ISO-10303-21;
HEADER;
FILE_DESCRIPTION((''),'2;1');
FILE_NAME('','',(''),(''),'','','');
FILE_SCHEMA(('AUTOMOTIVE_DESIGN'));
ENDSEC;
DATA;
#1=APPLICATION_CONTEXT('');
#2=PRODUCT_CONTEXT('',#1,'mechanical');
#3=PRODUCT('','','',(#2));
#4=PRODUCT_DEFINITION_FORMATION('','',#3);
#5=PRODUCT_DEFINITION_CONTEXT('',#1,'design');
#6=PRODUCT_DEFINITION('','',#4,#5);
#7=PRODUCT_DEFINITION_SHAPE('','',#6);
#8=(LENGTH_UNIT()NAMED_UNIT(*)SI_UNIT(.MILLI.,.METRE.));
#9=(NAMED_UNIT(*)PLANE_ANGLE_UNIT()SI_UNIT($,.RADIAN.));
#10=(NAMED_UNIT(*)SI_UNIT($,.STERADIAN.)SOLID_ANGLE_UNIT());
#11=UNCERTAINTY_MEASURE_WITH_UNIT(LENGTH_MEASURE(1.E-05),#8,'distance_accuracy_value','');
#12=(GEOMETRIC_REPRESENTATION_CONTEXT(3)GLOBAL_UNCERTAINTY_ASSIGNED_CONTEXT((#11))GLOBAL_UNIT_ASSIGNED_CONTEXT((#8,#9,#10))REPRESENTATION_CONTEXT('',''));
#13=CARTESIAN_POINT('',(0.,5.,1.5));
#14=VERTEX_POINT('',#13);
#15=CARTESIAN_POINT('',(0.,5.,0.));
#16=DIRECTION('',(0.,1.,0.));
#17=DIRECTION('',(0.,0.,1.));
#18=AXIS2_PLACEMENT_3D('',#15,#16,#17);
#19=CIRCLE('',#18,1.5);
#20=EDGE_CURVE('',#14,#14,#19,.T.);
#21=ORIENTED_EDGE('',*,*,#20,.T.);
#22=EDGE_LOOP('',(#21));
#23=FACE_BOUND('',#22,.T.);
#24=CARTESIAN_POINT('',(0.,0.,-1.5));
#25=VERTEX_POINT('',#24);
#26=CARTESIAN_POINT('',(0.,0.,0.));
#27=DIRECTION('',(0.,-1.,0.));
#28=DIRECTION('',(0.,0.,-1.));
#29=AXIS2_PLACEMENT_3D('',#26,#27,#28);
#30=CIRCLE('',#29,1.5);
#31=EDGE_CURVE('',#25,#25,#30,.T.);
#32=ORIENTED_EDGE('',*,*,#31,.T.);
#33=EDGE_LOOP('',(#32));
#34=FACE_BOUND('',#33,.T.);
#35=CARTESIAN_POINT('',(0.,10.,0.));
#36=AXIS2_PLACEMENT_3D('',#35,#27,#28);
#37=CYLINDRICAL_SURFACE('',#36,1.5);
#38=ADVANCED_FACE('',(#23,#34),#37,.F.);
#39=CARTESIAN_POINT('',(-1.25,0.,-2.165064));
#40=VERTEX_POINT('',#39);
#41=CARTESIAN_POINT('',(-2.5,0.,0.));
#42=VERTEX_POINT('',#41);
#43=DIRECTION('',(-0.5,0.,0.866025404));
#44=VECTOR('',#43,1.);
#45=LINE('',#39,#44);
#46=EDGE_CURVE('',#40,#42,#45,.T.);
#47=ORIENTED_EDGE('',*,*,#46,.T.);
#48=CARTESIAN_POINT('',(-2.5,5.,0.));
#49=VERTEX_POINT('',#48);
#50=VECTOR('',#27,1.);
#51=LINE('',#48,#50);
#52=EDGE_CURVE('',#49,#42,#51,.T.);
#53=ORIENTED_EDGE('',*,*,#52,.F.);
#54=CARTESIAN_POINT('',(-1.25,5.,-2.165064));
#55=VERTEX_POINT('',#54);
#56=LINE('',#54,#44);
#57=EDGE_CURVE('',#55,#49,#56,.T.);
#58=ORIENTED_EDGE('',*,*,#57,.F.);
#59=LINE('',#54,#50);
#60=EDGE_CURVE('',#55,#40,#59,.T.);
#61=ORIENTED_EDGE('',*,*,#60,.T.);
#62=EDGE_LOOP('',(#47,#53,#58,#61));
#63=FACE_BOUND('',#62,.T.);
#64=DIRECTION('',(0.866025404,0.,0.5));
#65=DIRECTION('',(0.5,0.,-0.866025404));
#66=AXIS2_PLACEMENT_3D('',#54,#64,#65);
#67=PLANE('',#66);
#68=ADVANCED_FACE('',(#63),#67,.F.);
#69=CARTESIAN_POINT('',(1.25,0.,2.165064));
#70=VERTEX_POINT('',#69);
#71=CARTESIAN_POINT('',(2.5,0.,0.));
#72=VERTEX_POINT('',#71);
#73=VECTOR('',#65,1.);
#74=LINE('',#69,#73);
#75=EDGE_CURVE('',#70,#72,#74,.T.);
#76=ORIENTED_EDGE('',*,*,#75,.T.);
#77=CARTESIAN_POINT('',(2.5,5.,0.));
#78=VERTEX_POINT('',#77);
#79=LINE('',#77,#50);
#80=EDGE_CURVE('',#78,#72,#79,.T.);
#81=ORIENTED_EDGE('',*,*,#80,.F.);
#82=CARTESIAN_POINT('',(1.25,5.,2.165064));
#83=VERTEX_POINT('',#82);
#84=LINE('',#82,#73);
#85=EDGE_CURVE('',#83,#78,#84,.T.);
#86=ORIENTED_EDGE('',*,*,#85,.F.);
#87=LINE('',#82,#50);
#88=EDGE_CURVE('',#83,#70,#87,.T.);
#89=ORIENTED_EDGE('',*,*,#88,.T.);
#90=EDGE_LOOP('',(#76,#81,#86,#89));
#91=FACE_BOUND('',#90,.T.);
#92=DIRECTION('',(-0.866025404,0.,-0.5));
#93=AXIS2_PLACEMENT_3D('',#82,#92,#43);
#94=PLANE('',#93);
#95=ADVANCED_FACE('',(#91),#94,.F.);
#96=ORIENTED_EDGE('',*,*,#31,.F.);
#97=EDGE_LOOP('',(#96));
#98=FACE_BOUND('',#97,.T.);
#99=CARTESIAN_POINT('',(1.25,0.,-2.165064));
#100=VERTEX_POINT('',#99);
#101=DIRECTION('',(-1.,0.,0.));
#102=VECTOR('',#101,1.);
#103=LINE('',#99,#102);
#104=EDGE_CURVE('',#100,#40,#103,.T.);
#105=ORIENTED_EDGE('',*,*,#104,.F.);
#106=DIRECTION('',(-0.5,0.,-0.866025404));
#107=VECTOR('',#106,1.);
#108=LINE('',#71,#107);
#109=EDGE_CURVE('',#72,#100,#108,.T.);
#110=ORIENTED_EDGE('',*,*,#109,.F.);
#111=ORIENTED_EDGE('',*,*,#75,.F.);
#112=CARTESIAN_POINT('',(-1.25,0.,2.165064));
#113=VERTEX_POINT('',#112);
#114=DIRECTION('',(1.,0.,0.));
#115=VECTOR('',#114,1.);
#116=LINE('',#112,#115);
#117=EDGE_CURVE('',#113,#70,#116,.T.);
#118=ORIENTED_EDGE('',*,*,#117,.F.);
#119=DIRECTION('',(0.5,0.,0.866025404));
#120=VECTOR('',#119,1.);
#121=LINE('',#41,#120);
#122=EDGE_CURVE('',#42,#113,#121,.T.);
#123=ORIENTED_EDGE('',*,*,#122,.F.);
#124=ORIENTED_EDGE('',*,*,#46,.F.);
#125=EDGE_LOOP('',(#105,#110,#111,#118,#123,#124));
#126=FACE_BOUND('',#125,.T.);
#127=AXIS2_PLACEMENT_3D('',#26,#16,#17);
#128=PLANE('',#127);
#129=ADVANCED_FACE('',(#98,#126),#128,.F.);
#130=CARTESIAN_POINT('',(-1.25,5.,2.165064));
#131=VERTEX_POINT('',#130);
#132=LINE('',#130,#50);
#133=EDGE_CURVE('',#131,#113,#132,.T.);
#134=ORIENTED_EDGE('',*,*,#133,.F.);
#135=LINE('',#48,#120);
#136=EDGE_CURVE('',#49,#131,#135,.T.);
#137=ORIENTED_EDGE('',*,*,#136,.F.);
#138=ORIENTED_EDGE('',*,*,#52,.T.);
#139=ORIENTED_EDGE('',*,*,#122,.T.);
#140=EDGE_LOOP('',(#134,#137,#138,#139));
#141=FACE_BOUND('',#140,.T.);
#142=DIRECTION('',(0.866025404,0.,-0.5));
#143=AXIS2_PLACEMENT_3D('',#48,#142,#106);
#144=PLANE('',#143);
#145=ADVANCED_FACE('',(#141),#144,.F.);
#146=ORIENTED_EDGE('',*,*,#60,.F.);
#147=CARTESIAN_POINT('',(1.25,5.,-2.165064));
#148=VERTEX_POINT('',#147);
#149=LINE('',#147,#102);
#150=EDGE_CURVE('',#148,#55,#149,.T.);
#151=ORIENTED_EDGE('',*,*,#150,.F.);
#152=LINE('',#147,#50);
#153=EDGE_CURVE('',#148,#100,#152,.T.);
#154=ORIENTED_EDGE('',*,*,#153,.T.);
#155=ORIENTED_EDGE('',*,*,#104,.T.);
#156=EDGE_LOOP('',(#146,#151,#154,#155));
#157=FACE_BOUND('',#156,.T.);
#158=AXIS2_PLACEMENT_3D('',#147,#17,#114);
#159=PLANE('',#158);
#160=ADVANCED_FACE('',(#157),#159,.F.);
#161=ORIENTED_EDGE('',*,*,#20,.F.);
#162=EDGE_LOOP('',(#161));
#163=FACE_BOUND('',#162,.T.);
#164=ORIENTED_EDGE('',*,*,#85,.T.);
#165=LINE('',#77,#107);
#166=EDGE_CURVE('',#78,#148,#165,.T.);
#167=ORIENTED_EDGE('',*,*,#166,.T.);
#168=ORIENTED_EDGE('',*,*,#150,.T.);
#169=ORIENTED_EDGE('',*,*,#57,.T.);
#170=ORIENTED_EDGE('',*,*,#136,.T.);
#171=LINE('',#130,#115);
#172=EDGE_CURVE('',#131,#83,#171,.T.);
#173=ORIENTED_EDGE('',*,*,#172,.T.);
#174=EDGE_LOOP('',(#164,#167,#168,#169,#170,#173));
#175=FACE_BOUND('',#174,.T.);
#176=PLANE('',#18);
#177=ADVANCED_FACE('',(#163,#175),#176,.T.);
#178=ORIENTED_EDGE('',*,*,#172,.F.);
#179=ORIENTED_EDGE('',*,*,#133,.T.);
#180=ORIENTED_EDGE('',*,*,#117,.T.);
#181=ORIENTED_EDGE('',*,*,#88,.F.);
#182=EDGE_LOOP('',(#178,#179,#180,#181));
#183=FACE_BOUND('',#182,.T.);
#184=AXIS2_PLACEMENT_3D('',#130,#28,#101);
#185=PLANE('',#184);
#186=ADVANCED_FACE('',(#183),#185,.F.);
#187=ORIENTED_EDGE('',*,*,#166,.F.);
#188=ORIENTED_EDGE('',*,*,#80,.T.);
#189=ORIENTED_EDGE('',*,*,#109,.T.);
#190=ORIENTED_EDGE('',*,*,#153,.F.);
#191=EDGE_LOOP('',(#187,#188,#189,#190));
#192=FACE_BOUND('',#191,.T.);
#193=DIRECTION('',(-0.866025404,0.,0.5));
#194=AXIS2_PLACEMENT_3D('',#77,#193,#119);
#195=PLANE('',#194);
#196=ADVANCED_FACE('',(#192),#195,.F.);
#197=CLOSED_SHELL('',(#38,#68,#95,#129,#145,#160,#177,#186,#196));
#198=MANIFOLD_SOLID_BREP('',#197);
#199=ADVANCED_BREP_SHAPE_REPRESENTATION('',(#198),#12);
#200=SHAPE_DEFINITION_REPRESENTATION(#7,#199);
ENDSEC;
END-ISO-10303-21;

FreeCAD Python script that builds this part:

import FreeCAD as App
import Part
import Sketcher

V = App.Vector
Q = App.Units.Quantity


def add_polygon(sketch, points):
    """Adds a closed chain of lines whose ends are joined by coincident constraints."""
    first, n = sketch.GeometryCount, len(points)
    for a, b in zip(points, points[1:] + points[:1]):
        sketch.addGeometry(Part.LineSegment(App.Vector(*a, 0), App.Vector(*b, 0)), False)
    for i in range(n):
        sketch.addConstraint(Sketcher.Constraint("Coincident", first + i, 2, first + (i + 1) % n, 1))

doc = App.newDocument("Part")
body = doc.addObject("PartDesign::Body", "Body")

# Sketch on XZ plane
sketch1 = body.newObject("Sketcher::SketchObject", "Sketch")
sketch1.AttachmentSupport = (doc.getObject("XZ_Plane"), [""])
sketch1.MapMode = "FlatFace"
add_polygon(sketch1, [(1.2, 2.2), (2.5, 0), (1.2, -2.2), (-1.2, -2.2), (-2.5, 0), (-1.2, 2.2)])  # lines 0-5
sketch1.addConstraint([
    Sketcher.Constraint("Horizontal", 2),
    Sketcher.Constraint("Horizontal", 5),
    Sketcher.Constraint("Symmetric", 0, 2, 3, 2, -1, 1),
    Sketcher.Constraint("Symmetric", 1, 2, 4, 2, -1, 1),
    Sketcher.Constraint("PointOnObject", 0, 2, -1),
    Sketcher.Constraint("Parallel", 0, 3),
    Sketcher.Constraint("Vertical", 2, 2, 4, 2),
    Sketcher.Constraint("Angle", 0, Q("-60 deg")),
    Sketcher.Constraint("DistanceX", 2, 2, 2, 1, Q("2.5 mm")),
    Sketcher.Constraint("DistanceX", 3, 2, 0, 2, Q("5 mm")),
])
pad1 = body.newObject("PartDesign::Pad", "Pad")
pad1.Profile = sketch1
pad1.Length = 5
pad1.Reversed = True

# Sketch on XZ plane
sketch2 = body.newObject("Sketcher::SketchObject", "Sketch001")
sketch2.AttachmentSupport = (doc.getObject("XZ_Plane"), [""])
sketch2.MapMode = "FlatFace"
sketch2.AttachmentOffset = App.Placement(V(0, 0, -5), App.Rotation())
sketch2.addGeometry(Part.Circle(V(0, 0, 0), V(0, 0, 1), 1.5), False)
sketch2.addConstraint([
    Sketcher.Constraint("Coincident", 0, 3, -1, 1),
    Sketcher.Constraint("Diameter", 0, Q("3 mm")),
])
pad2 = body.newObject("PartDesign::Pad", "Pad001")
pad2.Profile = sketch2
pad2.Length = 5
pad2.Reversed = True

# Sketch on XZ plane
sketch3 = body.newObject("Sketcher::SketchObject", "Sketch002")
sketch3.AttachmentSupport = (doc.getObject("XZ_Plane"), [""])
sketch3.MapMode = "FlatFace"
sketch3.addGeometry(Part.Circle(V(0, 0, 0), V(0, 0, 1), 1.5), False)
sketch3.addConstraint([
    Sketcher.Constraint("Coincident", 0, 3, -1, 1),
    Sketcher.Constraint("Diameter", 0, Q("3 mm")),
])
pocket1 = body.newObject("PartDesign::Pocket", "Pocket")
pocket1.Profile = sketch3
pocket1.Length = 10

doc.recompute()
